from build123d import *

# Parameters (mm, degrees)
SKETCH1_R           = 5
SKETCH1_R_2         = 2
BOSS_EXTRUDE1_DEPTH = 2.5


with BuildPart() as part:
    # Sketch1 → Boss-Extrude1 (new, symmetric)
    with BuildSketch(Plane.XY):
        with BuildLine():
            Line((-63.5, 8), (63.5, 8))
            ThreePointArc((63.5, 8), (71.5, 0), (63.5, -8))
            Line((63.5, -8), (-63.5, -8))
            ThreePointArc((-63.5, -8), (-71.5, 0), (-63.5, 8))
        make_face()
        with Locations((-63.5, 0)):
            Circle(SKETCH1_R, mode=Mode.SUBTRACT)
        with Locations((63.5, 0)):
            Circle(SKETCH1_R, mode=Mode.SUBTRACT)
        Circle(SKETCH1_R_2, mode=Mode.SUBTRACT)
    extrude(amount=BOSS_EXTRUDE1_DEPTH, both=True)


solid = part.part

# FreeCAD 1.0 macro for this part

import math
import FreeCAD as App
import Part
import Sketcher
from FreeCAD import Vector
Q = App.Units.Quantity

doc = App.newDocument("Part")
body = doc.addObject("PartDesign::Body", "Body")

# Sketch on XY plane
sketch1 = body.newObject("Sketcher::SketchObject", "Sketch")
sketch1.AttachmentSupport = (doc.getObject("XY_Plane"), [""])
sketch1.MapMode = "FlatFace"
sketch1.addGeometry(Part.LineSegment(Vector(63.5, 8, 0), Vector(-63.5, 8, 0)), False)
sketch1.addGeometry(Part.ArcOfCircle(Part.Circle(Vector(-63.5, 0, 0), Vector(0, 0, 1), 8), math.radians(90), math.radians(270)), False)
sketch1.addGeometry(Part.LineSegment(Vector(-63.5, -8, 0), Vector(63.5, -8, 0)), False)
sketch1.addGeometry(Part.ArcOfCircle(Part.Circle(Vector(63.5, 0, 0), Vector(0, 0, 1), 8), math.radians(-90), math.radians(90)), False)
sketch1.addGeometry(Part.Circle(Vector(63.5, 0, 0), Vector(0, 0, 1), 5), False)
sketch1.addGeometry(Part.Circle(Vector(0, 0, 0), Vector(0, 0, 1), 2), False)
sketch1.addGeometry(Part.Circle(Vector(-63.5, 0, 0), Vector(0, 0, 1), 5), False)
sketch1.addConstraint(Sketcher.Constraint("Tangent", 0, 2, 1, 1))
sketch1.addConstraint(Sketcher.Constraint("Tangent", 1, 2, 2, 1))
sketch1.addConstraint(Sketcher.Constraint("Tangent", 2, 2, 3, 1))
sketch1.addConstraint(Sketcher.Constraint("Tangent", 3, 2, 0, 1))
sketch1.addConstraint(Sketcher.Constraint("Horizontal", 0))
sketch1.addConstraint(Sketcher.Constraint("Horizontal", 2))
sketch1.addConstraint(Sketcher.Constraint("Coincident", 5, 3, -1, 1))
sketch1.addConstraint(Sketcher.Constraint("Coincident", 4, 3, 3, 3))
sketch1.addConstraint(Sketcher.Constraint("Coincident", 6, 3, 1, 3))
sketch1.addConstraint(Sketcher.Constraint("Equal", 4, 6))
sketch1.addConstraint(Sketcher.Constraint("Symmetric", 1, 3, 3, 3, -1, 1))
sketch1.addConstraint(Sketcher.Constraint("Diameter", 4, Q("10 mm")))
sketch1.addConstraint(Sketcher.Constraint("Diameter", 5, Q("4 mm")))
sketch1.addConstraint(Sketcher.Constraint("Radius", 1, Q("8 mm")))
sketch1.addConstraint(Sketcher.Constraint("DistanceX", 0, 2, 0, 1, Q("127 mm")))
pad1 = body.newObject("PartDesign::Pad", "Pad")
pad1.Profile = sketch1
pad1.Length = 5
pad1.Midplane = True

doc.recompute()
